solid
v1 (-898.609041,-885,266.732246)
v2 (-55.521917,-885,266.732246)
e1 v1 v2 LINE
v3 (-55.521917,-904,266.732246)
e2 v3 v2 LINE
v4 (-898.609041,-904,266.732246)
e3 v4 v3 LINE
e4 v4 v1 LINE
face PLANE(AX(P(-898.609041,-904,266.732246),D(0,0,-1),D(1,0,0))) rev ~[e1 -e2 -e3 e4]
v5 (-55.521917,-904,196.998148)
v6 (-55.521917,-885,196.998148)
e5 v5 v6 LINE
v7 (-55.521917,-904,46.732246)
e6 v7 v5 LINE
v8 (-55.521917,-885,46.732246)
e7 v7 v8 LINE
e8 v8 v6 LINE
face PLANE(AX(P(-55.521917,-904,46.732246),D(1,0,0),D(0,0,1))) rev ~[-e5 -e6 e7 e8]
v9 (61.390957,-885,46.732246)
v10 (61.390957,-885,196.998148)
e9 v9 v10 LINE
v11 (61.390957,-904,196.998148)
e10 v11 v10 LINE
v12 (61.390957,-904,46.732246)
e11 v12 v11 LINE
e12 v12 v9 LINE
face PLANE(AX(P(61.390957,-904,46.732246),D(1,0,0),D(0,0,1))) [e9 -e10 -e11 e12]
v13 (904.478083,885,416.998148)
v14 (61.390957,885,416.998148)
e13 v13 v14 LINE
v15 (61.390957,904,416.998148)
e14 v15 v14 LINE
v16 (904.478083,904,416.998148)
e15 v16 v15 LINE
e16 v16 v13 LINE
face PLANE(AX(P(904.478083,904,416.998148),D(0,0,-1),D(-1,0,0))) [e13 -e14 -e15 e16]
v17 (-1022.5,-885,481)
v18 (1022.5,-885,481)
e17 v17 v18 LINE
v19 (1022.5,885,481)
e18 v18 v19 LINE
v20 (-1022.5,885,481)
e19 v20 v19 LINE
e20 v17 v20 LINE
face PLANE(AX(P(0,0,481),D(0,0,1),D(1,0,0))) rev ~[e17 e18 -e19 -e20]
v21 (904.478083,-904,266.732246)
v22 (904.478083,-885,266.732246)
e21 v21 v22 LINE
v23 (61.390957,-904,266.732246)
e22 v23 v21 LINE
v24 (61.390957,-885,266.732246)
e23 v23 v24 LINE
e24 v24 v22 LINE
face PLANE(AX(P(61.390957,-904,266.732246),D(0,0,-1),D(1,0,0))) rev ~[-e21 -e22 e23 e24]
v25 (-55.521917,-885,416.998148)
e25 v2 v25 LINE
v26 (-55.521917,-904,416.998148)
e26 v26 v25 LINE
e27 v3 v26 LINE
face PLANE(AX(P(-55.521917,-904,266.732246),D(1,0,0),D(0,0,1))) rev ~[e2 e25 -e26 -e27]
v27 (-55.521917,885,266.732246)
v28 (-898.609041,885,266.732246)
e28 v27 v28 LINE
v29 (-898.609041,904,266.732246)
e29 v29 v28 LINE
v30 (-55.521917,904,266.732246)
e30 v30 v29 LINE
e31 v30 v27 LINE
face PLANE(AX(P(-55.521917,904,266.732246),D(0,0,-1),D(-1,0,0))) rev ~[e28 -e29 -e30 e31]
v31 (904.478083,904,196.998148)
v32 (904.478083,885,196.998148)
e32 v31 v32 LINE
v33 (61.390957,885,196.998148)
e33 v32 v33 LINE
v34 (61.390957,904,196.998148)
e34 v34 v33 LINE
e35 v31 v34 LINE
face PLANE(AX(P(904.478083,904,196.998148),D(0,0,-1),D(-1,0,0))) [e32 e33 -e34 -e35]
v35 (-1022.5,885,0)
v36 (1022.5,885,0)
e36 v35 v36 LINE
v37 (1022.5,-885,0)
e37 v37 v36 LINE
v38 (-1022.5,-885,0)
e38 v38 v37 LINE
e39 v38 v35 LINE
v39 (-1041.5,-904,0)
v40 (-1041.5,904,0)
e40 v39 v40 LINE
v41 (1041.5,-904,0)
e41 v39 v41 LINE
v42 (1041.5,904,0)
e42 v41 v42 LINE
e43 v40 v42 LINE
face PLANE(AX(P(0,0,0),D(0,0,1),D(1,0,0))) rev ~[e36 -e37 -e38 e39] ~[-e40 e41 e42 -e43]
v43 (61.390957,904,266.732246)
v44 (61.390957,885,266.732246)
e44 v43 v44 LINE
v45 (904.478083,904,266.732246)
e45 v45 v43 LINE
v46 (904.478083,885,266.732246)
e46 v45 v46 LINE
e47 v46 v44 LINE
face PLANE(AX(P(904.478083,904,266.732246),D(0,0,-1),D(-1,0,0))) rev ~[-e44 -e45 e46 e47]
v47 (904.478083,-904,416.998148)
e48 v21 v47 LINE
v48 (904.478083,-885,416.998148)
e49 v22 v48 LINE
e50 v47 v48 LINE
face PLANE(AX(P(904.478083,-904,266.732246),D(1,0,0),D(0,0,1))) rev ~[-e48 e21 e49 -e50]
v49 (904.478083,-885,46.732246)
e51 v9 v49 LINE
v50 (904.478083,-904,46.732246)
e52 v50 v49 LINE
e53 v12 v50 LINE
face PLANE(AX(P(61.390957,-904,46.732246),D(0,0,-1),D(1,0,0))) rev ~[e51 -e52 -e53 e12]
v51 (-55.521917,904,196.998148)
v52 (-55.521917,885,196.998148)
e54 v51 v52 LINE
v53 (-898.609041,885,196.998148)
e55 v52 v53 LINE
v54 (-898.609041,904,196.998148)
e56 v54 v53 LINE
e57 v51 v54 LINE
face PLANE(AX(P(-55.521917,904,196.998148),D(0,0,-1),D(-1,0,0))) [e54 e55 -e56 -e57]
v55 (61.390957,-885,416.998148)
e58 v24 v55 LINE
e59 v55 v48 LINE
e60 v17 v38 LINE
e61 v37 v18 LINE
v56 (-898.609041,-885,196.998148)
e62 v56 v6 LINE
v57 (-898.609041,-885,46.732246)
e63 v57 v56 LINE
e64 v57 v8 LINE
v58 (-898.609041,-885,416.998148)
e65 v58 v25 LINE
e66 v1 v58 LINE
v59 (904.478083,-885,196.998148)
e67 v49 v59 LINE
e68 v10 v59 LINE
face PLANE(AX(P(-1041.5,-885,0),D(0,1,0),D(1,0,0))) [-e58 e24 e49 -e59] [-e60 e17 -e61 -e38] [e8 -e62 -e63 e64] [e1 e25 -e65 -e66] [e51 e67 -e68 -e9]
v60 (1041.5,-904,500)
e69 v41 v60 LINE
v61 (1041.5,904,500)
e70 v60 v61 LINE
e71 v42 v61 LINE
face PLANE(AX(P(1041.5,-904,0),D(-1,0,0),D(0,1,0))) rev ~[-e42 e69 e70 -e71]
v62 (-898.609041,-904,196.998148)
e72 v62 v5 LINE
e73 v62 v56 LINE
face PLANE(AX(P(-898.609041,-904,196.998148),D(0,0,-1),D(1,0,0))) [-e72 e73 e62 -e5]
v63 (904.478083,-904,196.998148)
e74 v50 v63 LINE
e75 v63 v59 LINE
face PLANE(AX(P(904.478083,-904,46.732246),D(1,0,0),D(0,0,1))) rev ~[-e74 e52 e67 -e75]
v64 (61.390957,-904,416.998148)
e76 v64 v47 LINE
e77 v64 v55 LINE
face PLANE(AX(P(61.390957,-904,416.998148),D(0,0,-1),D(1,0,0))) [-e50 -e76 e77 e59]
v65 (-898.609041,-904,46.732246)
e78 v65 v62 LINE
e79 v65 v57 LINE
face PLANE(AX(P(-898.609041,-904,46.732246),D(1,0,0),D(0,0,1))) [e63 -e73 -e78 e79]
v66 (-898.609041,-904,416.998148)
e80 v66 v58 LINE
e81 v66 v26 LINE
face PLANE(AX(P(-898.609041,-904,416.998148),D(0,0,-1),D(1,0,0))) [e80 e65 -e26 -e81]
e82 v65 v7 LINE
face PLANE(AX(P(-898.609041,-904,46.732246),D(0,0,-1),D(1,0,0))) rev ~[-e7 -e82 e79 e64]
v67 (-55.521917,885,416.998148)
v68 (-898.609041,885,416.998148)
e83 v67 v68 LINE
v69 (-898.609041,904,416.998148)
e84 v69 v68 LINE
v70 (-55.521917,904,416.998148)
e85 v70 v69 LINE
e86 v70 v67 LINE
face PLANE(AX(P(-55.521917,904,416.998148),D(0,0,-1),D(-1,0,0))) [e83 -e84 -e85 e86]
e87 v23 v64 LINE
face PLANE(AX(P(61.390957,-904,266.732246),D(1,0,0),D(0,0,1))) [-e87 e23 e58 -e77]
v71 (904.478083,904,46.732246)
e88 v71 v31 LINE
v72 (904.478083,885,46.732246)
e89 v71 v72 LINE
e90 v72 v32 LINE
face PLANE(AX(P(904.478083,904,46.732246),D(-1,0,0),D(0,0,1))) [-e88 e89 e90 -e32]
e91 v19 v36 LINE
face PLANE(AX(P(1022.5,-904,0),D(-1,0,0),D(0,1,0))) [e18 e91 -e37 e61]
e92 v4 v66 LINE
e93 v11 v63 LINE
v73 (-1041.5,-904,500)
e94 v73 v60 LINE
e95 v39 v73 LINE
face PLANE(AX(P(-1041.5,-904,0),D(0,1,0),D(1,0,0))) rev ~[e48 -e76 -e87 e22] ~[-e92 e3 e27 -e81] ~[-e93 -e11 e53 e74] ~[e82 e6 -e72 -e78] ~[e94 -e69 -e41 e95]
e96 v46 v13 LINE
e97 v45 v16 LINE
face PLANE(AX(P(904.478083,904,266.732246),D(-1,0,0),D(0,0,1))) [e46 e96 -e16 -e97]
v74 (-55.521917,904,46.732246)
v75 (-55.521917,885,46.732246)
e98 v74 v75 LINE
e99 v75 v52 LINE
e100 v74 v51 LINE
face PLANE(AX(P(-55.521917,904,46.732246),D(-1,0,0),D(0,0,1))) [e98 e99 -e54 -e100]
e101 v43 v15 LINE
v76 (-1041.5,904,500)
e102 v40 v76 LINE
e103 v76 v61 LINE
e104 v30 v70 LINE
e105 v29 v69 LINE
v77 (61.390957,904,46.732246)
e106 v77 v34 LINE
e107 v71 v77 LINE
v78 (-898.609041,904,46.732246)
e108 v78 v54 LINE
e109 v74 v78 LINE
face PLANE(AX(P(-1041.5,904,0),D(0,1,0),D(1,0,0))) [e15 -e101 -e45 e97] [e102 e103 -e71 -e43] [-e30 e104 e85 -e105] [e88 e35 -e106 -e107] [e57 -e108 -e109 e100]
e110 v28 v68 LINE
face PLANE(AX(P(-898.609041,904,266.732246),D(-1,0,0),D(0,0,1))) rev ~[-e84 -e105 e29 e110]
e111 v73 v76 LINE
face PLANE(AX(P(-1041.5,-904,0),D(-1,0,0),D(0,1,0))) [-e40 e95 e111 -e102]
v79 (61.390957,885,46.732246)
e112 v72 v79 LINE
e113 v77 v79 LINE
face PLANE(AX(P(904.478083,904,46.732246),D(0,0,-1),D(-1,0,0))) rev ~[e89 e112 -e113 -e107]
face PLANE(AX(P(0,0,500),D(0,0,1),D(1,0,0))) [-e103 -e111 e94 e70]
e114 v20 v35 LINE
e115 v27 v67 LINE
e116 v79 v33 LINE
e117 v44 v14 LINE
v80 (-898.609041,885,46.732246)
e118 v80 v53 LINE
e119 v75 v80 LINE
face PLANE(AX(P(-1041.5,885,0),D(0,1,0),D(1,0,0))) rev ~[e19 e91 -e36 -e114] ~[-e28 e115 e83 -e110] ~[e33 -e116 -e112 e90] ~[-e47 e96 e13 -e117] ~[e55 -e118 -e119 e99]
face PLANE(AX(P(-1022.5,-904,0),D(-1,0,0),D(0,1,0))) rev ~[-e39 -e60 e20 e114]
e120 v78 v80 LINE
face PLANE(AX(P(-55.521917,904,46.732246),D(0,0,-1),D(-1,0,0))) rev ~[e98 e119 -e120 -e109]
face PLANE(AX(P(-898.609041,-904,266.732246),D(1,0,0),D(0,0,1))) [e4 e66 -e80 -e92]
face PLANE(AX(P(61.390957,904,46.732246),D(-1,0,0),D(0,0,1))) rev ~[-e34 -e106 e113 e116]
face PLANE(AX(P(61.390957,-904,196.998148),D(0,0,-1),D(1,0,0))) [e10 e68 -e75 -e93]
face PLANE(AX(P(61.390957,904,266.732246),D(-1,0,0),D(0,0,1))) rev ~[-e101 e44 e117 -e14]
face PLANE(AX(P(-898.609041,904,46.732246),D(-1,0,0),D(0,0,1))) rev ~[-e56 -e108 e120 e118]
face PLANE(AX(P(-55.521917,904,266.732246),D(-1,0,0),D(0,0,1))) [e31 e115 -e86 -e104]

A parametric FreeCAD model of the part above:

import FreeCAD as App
import Part
import Sketcher

V = App.Vector
Q = App.Units.Quantity


def faces_at(feature, points):
    """Names of the faces that lie closest to the given points."""
    faces = feature.Shape.Faces
    near = lambda p: min(range(len(faces)), key=lambda i: faces[i].distToShape(Part.Vertex(*p))[0])
    return sorted({f"Face{near(p) + 1}" for p in points})

doc = App.newDocument("Part")
body = doc.addObject("PartDesign::Body", "Body")

sketch1 = doc.addObject("Sketcher::SketchObject", "Sketch")
body.addObject(sketch1)
sketch1.AttachmentSupport = (doc.XY_Plane, [""])
sketch1.MapMode = "FlatFace"
sketch1.addGeometry(Part.LineSegment(V(-1042, 904, 0), V(-1042, -904, 0)), False)
sketch1.addGeometry(Part.LineSegment(V(-1042, -904, 0), V(1042, -904, 0)), False)
sketch1.addGeometry(Part.LineSegment(V(1042, -904, 0), V(1042, 904, 0)), False)
sketch1.addGeometry(Part.LineSegment(V(1042, 904, 0), V(-1042, 904, 0)), False)
sketch1.addConstraint(Sketcher.Constraint("Coincident", 0, 2, 1, 1))
sketch1.addConstraint(Sketcher.Constraint("Coincident", 1, 2, 2, 1))
sketch1.addConstraint(Sketcher.Constraint("Coincident", 2, 2, 3, 1))
sketch1.addConstraint(Sketcher.Constraint("Coincident", 3, 2, 0, 1))
sketch1.addConstraint(Sketcher.Constraint("Vertical", 0))
sketch1.addConstraint(Sketcher.Constraint("Horizontal", 1))
sketch1.addConstraint(Sketcher.Constraint("Vertical", 2))
sketch1.addConstraint(Sketcher.Constraint("Horizontal", 3))
sketch1.addConstraint(Sketcher.Constraint("Symmetric", 0, 2, 2, 2, -1, 1))
sketch1.addConstraint(Sketcher.Constraint("DistanceX", 1, 1, 1, 2, Q("2083 mm")))
sketch1.addConstraint(Sketcher.Constraint("DistanceY", 0, 2, 0, 1, Q("1808 mm")))
pad1 = doc.addObject("PartDesign::Pad", "Pad")
body.addObject(pad1)
pad1.Profile = sketch1
pad1.Length = 500
doc.recompute()

thickness = doc.addObject("PartDesign::Thickness", "Thickness")
body.addObject(thickness)
thickness.Base = (pad1, faces_at(pad1, [(0, 0, 0)]))
thickness.Value = 19
thickness.Reversed = True
thickness.Join = "Arc"

sketch2 = doc.addObject("Sketcher::SketchObject", "Sketch001")
body.addObject(sketch2)
sketch2.AttachmentSupport = (doc.XZ_Plane, [""])
sketch2.MapMode = "FlatFace"
sketch2.AttachmentOffset = App.Placement(V(0, 0, 904), App.Rotation())
sketch2.addGeometry(Part.LineSegment(V(-899, 417, 0), V(-899, 267, 0)), False)
sketch2.addGeometry(Part.LineSegment(V(-899, 267, 0), V(-56, 267, 0)), False)
sketch2.addGeometry(Part.LineSegment(V(-56, 267, 0), V(-56, 417, 0)), False)
sketch2.addGeometry(Part.LineSegment(V(-56, 417, 0), V(-899, 417, 0)), False)
sketch2.addGeometry(Part.LineSegment(V(61, 417, 0), V(61, 267, 0)), False)
sketch2.addGeometry(Part.LineSegment(V(61, 267, 0), V(904, 267, 0)), False)
sketch2.addGeometry(Part.LineSegment(V(904, 267, 0), V(904, 417, 0)), False)
sketch2.addGeometry(Part.LineSegment(V(904, 417, 0), V(61, 417, 0)), False)
sketch2.addGeometry(Part.LineSegment(V(-899, 197, 0), V(-899, 47, 0)), False)
sketch2.addGeometry(Part.LineSegment(V(-899, 47, 0), V(-56, 47, 0)), False)
sketch2.addGeometry(Part.LineSegment(V(-56, 47, 0), V(-56, 197, 0)), False)
sketch2.addGeometry(Part.LineSegment(V(-56, 197, 0), V(-899, 197, 0)), False)
sketch2.addGeometry(Part.LineSegment(V(61, 197, 0), V(61, 47, 0)), False)
sketch2.addGeometry(Part.LineSegment(V(61, 47, 0), V(904, 47, 0)), False)
sketch2.addGeometry(Part.LineSegment(V(904, 47, 0), V(904, 197, 0)), False)
sketch2.addGeometry(Part.LineSegment(V(904, 197, 0), V(61, 197, 0)), False)
sketch2.addConstraint(Sketcher.Constraint("Coincident", 0, 2, 1, 1))
sketch2.addConstraint(Sketcher.Constraint("Coincident", 1, 2, 2, 1))
sketch2.addConstraint(Sketcher.Constraint("Coincident", 2, 2, 3, 1))
sketch2.addConstraint(Sketcher.Constraint("Coincident", 3, 2, 0, 1))
sketch2.addConstraint(Sketcher.Constraint("Coincident", 4, 2, 5, 1))
sketch2.addConstraint(Sketcher.Constraint("Coincident", 5, 2, 6, 1))
sketch2.addConstraint(Sketcher.Constraint("Coincident", 6, 2, 7, 1))
sketch2.addConstraint(Sketcher.Constraint("Coincident", 7, 2, 4, 1))
sketch2.addConstraint(Sketcher.Constraint("Coincident", 8, 2, 9, 1))
sketch2.addConstraint(Sketcher.Constraint("Coincident", 9, 2, 10, 1))
sketch2.addConstraint(Sketcher.Constraint("Coincident", 10, 2, 11, 1))
sketch2.addConstraint(Sketcher.Constraint("Coincident", 11, 2, 8, 1))
sketch2.addConstraint(Sketcher.Constraint("Coincident", 12, 2, 13, 1))
sketch2.addConstraint(Sketcher.Constraint("Coincident", 13, 2, 14, 1))
sketch2.addConstraint(Sketcher.Constraint("Coincident", 14, 2, 15, 1))
sketch2.addConstraint(Sketcher.Constraint("Coincident", 15, 2, 12, 1))
sketch2.addConstraint(Sketcher.Constraint("Vertical", 0))
sketch2.addConstraint(Sketcher.Constraint("Horizontal", 1))
sketch2.addConstraint(Sketcher.Constraint("Vertical", 2))
sketch2.addConstraint(Sketcher.Constraint("Horizontal", 3))
sketch2.addConstraint(Sketcher.Constraint("Vertical", 4))
sketch2.addConstraint(Sketcher.Constraint("Horizontal", 5))
sketch2.addConstraint(Sketcher.Constraint("Vertical", 6))
sketch2.addConstraint(Sketcher.Constraint("Horizontal", 7))
sketch2.addConstraint(Sketcher.Constraint("Vertical", 8))
sketch2.addConstraint(Sketcher.Constraint("Horizontal", 9))
sketch2.addConstraint(Sketcher.Constraint("Vertical", 10))
sketch2.addConstraint(Sketcher.Constraint("Horizontal", 11))
sketch2.addConstraint(Sketcher.Constraint("Vertical", 12))
sketch2.addConstraint(Sketcher.Constraint("Horizontal", 13))
sketch2.addConstraint(Sketcher.Constraint("Vertical", 14))
sketch2.addConstraint(Sketcher.Constraint("Horizontal", 15))
sketch2.addConstraint(Sketcher.Constraint("Horizontal", 1, 2, 4, 2))
sketch2.addConstraint(Sketcher.Constraint("Horizontal", 3, 2, 6, 2))
sketch2.addConstraint(Sketcher.Constraint("Horizontal", 9, 2, 12, 2))
sketch2.addConstraint(Sketcher.Constraint("Horizontal", 11, 2, 14, 2))
sketch2.addConstraint(Sketcher.Constraint("Vertical", 3, 2, 8, 2))
sketch2.addConstraint(Sketcher.Constraint("Vertical", 2, 2, 9, 2))
sketch2.addConstraint(Sketcher.Constraint("Vertical", 7, 2, 12, 2))
sketch2.addConstraint(Sketcher.Constraint("Vertical", 6, 2, 13, 2))
sketch2.addConstraint(Sketcher.Constraint("Equal", 3, 5))
sketch2.addConstraint(Sketcher.Constraint("Equal", 6, 8))
sketch2.addConstraint(Sketcher.Constraint("DistanceX", 0, 2, 4, 2, Q("959.999999 mm")))
sketch2.addConstraint(Sketcher.Constraint("DistanceY", 8, 2, 0, 2, Q("220 mm")))
sketch2.addConstraint(Sketcher.Constraint("DistanceY", 8, 2, 8, 1, Q("150.265902 mm")))
sketch2.addConstraint(Sketcher.Constraint("DistanceX", 1, 1, 1, 2, Q("843.087125 mm")))
sketch2.addConstraint(Sketcher.Constraint("DistanceX", 0, 2, -1, 1, Q("898.609041 mm")))
sketch2.addConstraint(Sketcher.Constraint("DistanceY", -1, 1, 2, 2, Q("416.998148 mm")))
pocket1 = doc.addObject("PartDesign::Pocket", "Pocket")
body.addObject(pocket1)
pocket1.Profile = sketch2
pocket1.Length = 19

sketch3 = doc.addObject("Sketcher::SketchObject", "Sketch002")
body.addObject(sketch3)
sketch3.AttachmentSupport = (doc.XZ_Plane, [""])
sketch3.MapMode = "FlatFace"
sketch3.AttachmentOffset = App.Placement(V(0, 0, -904), App.Rotation())
sketch3.addGeometry(Part.LineSegment(V(904, 417, 0), V(904, 267, 0)), False)
sketch3.addGeometry(Part.LineSegment(V(904, 267, 0), V(61, 267, 0)), False)
sketch3.addGeometry(Part.LineSegment(V(61, 267, 0), V(61, 417, 0)), False)
sketch3.addGeometry(Part.LineSegment(V(61, 417, 0), V(904, 417, 0)), False)
sketch3.addGeometry(Part.LineSegment(V(-56, 417, 0), V(-56, 267, 0)), False)
sketch3.addGeometry(Part.LineSegment(V(-56, 267, 0), V(-899, 267, 0)), False)
sketch3.addGeometry(Part.LineSegment(V(-899, 267, 0), V(-899, 417, 0)), False)
sketch3.addGeometry(Part.LineSegment(V(-899, 417, 0), V(-56, 417, 0)), False)
sketch3.addGeometry(Part.LineSegment(V(904, 197, 0), V(904, 47, 0)), False)
sketch3.addGeometry(Part.LineSegment(V(904, 47, 0), V(61, 47, 0)), False)
sketch3.addGeometry(Part.LineSegment(V(61, 47, 0), V(61, 197, 0)), False)
sketch3.addGeometry(Part.LineSegment(V(61, 197, 0), V(904, 197, 0)), False)
sketch3.addGeometry(Part.LineSegment(V(-56, 197, 0), V(-56, 47, 0)), False)
sketch3.addGeometry(Part.LineSegment(V(-56, 47, 0), V(-899, 47, 0)), False)
sketch3.addGeometry(Part.LineSegment(V(-899, 47, 0), V(-899, 197, 0)), False)
sketch3.addGeometry(Part.LineSegment(V(-899, 197, 0), V(-56, 197, 0)), False)
sketch3.addConstraint(Sketcher.Constraint("Coincident", 0, 2, 1, 1))
sketch3.addConstraint(Sketcher.Constraint("Coincident", 1, 2, 2, 1))
sketch3.addConstraint(Sketcher.Constraint("Coincident", 2, 2, 3, 1))
sketch3.addConstraint(Sketcher.Constraint("Coincident", 3, 2, 0, 1))
sketch3.addConstraint(Sketcher.Constraint("Coincident", 4, 2, 5, 1))
sketch3.addConstraint(Sketcher.Constraint("Coincident", 5, 2, 6, 1))
sketch3.addConstraint(Sketcher.Constraint("Coincident", 6, 2, 7, 1))
sketch3.addConstraint(Sketcher.Constraint("Coincident", 7, 2, 4, 1))
sketch3.addConstraint(Sketcher.Constraint("Coincident", 8, 2, 9, 1))
sketch3.addConstraint(Sketcher.Constraint("Coincident", 9, 2, 10, 1))
sketch3.addConstraint(Sketcher.Constraint("Coincident", 10, 2, 11, 1))
sketch3.addConstraint(Sketcher.Constraint("Coincident", 11, 2, 8, 1))
sketch3.addConstraint(Sketcher.Constraint("Coincident", 12, 2, 13, 1))
sketch3.addConstraint(Sketcher.Constraint("Coincident", 13, 2, 14, 1))
sketch3.addConstraint(Sketcher.Constraint("Coincident", 14, 2, 15, 1))
sketch3.addConstraint(Sketcher.Constraint("Coincident", 15, 2, 12, 1))
sketch3.addConstraint(Sketcher.Constraint("Vertical", 0))
sketch3.addConstraint(Sketcher.Constraint("Horizontal", 1))
sketch3.addConstraint(Sketcher.Constraint("Vertical", 2))
sketch3.addConstraint(Sketcher.Constraint("Horizontal", 3))
sketch3.addConstraint(Sketcher.Constraint("Vertical", 4))
sketch3.addConstraint(Sketcher.Constraint("Horizontal", 5))
sketch3.addConstraint(Sketcher.Constraint("Vertical", 6))
sketch3.addConstraint(Sketcher.Constraint("Horizontal", 7))
sketch3.addConstraint(Sketcher.Constraint("Vertical", 8))
sketch3.addConstraint(Sketcher.Constraint("Horizontal", 9))
sketch3.addConstraint(Sketcher.Constraint("Vertical", 10))
sketch3.addConstraint(Sketcher.Constraint("Horizontal", 11))
sketch3.addConstraint(Sketcher.Constraint("Vertical", 12))
sketch3.addConstraint(Sketcher.Constraint("Horizontal", 13))
sketch3.addConstraint(Sketcher.Constraint("Vertical", 14))
sketch3.addConstraint(Sketcher.Constraint("Horizontal", 15))
sketch3.addConstraint(Sketcher.Constraint("Horizontal", 1, 2, 4, 2))
sketch3.addConstraint(Sketcher.Constraint("Horizontal", 3, 2, 6, 2))
sketch3.addConstraint(Sketcher.Constraint("Horizontal", 9, 2, 12, 2))
sketch3.addConstraint(Sketcher.Constraint("Horizontal", 11, 2, 14, 2))
sketch3.addConstraint(Sketcher.Constraint("Vertical", 3, 2, 8, 2))
sketch3.addConstraint(Sketcher.Constraint("Vertical", 2, 2, 9, 2))
sketch3.addConstraint(Sketcher.Constraint("Vertical", 7, 2, 12, 2))
sketch3.addConstraint(Sketcher.Constraint("Vertical", 6, 2, 13, 2))
sketch3.addConstraint(Sketcher.Constraint("Equal", 3, 5))
sketch3.addConstraint(Sketcher.Constraint("Equal", 6, 8))
sketch3.addConstraint(Sketcher.Constraint("DistanceX", 4, 2, 0, 2, Q("959.999999 mm")))
sketch3.addConstraint(Sketcher.Constraint("DistanceY", 8, 2, 0, 2, Q("220 mm")))
sketch3.addConstraint(Sketcher.Constraint("DistanceY", 8, 2, 8, 1, Q("150.265902 mm")))
sketch3.addConstraint(Sketcher.Constraint("DistanceX", 1, 2, 1, 1, Q("843.087125 mm")))
sketch3.addConstraint(Sketcher.Constraint("DistanceY", -1, 1, 2, 2, Q("416.998148 mm")))
sketch3.addConstraint(Sketcher.Constraint("DistanceX", 5, 2, -1, 1, Q("898.609041 mm")))
pocket2 = doc.addObject("PartDesign::Pocket", "Pocket001")
body.addObject(pocket2)
pocket2.Profile = sketch3
pocket2.Type = "ThroughAll"
pocket2.Reversed = True

doc.recompute()
